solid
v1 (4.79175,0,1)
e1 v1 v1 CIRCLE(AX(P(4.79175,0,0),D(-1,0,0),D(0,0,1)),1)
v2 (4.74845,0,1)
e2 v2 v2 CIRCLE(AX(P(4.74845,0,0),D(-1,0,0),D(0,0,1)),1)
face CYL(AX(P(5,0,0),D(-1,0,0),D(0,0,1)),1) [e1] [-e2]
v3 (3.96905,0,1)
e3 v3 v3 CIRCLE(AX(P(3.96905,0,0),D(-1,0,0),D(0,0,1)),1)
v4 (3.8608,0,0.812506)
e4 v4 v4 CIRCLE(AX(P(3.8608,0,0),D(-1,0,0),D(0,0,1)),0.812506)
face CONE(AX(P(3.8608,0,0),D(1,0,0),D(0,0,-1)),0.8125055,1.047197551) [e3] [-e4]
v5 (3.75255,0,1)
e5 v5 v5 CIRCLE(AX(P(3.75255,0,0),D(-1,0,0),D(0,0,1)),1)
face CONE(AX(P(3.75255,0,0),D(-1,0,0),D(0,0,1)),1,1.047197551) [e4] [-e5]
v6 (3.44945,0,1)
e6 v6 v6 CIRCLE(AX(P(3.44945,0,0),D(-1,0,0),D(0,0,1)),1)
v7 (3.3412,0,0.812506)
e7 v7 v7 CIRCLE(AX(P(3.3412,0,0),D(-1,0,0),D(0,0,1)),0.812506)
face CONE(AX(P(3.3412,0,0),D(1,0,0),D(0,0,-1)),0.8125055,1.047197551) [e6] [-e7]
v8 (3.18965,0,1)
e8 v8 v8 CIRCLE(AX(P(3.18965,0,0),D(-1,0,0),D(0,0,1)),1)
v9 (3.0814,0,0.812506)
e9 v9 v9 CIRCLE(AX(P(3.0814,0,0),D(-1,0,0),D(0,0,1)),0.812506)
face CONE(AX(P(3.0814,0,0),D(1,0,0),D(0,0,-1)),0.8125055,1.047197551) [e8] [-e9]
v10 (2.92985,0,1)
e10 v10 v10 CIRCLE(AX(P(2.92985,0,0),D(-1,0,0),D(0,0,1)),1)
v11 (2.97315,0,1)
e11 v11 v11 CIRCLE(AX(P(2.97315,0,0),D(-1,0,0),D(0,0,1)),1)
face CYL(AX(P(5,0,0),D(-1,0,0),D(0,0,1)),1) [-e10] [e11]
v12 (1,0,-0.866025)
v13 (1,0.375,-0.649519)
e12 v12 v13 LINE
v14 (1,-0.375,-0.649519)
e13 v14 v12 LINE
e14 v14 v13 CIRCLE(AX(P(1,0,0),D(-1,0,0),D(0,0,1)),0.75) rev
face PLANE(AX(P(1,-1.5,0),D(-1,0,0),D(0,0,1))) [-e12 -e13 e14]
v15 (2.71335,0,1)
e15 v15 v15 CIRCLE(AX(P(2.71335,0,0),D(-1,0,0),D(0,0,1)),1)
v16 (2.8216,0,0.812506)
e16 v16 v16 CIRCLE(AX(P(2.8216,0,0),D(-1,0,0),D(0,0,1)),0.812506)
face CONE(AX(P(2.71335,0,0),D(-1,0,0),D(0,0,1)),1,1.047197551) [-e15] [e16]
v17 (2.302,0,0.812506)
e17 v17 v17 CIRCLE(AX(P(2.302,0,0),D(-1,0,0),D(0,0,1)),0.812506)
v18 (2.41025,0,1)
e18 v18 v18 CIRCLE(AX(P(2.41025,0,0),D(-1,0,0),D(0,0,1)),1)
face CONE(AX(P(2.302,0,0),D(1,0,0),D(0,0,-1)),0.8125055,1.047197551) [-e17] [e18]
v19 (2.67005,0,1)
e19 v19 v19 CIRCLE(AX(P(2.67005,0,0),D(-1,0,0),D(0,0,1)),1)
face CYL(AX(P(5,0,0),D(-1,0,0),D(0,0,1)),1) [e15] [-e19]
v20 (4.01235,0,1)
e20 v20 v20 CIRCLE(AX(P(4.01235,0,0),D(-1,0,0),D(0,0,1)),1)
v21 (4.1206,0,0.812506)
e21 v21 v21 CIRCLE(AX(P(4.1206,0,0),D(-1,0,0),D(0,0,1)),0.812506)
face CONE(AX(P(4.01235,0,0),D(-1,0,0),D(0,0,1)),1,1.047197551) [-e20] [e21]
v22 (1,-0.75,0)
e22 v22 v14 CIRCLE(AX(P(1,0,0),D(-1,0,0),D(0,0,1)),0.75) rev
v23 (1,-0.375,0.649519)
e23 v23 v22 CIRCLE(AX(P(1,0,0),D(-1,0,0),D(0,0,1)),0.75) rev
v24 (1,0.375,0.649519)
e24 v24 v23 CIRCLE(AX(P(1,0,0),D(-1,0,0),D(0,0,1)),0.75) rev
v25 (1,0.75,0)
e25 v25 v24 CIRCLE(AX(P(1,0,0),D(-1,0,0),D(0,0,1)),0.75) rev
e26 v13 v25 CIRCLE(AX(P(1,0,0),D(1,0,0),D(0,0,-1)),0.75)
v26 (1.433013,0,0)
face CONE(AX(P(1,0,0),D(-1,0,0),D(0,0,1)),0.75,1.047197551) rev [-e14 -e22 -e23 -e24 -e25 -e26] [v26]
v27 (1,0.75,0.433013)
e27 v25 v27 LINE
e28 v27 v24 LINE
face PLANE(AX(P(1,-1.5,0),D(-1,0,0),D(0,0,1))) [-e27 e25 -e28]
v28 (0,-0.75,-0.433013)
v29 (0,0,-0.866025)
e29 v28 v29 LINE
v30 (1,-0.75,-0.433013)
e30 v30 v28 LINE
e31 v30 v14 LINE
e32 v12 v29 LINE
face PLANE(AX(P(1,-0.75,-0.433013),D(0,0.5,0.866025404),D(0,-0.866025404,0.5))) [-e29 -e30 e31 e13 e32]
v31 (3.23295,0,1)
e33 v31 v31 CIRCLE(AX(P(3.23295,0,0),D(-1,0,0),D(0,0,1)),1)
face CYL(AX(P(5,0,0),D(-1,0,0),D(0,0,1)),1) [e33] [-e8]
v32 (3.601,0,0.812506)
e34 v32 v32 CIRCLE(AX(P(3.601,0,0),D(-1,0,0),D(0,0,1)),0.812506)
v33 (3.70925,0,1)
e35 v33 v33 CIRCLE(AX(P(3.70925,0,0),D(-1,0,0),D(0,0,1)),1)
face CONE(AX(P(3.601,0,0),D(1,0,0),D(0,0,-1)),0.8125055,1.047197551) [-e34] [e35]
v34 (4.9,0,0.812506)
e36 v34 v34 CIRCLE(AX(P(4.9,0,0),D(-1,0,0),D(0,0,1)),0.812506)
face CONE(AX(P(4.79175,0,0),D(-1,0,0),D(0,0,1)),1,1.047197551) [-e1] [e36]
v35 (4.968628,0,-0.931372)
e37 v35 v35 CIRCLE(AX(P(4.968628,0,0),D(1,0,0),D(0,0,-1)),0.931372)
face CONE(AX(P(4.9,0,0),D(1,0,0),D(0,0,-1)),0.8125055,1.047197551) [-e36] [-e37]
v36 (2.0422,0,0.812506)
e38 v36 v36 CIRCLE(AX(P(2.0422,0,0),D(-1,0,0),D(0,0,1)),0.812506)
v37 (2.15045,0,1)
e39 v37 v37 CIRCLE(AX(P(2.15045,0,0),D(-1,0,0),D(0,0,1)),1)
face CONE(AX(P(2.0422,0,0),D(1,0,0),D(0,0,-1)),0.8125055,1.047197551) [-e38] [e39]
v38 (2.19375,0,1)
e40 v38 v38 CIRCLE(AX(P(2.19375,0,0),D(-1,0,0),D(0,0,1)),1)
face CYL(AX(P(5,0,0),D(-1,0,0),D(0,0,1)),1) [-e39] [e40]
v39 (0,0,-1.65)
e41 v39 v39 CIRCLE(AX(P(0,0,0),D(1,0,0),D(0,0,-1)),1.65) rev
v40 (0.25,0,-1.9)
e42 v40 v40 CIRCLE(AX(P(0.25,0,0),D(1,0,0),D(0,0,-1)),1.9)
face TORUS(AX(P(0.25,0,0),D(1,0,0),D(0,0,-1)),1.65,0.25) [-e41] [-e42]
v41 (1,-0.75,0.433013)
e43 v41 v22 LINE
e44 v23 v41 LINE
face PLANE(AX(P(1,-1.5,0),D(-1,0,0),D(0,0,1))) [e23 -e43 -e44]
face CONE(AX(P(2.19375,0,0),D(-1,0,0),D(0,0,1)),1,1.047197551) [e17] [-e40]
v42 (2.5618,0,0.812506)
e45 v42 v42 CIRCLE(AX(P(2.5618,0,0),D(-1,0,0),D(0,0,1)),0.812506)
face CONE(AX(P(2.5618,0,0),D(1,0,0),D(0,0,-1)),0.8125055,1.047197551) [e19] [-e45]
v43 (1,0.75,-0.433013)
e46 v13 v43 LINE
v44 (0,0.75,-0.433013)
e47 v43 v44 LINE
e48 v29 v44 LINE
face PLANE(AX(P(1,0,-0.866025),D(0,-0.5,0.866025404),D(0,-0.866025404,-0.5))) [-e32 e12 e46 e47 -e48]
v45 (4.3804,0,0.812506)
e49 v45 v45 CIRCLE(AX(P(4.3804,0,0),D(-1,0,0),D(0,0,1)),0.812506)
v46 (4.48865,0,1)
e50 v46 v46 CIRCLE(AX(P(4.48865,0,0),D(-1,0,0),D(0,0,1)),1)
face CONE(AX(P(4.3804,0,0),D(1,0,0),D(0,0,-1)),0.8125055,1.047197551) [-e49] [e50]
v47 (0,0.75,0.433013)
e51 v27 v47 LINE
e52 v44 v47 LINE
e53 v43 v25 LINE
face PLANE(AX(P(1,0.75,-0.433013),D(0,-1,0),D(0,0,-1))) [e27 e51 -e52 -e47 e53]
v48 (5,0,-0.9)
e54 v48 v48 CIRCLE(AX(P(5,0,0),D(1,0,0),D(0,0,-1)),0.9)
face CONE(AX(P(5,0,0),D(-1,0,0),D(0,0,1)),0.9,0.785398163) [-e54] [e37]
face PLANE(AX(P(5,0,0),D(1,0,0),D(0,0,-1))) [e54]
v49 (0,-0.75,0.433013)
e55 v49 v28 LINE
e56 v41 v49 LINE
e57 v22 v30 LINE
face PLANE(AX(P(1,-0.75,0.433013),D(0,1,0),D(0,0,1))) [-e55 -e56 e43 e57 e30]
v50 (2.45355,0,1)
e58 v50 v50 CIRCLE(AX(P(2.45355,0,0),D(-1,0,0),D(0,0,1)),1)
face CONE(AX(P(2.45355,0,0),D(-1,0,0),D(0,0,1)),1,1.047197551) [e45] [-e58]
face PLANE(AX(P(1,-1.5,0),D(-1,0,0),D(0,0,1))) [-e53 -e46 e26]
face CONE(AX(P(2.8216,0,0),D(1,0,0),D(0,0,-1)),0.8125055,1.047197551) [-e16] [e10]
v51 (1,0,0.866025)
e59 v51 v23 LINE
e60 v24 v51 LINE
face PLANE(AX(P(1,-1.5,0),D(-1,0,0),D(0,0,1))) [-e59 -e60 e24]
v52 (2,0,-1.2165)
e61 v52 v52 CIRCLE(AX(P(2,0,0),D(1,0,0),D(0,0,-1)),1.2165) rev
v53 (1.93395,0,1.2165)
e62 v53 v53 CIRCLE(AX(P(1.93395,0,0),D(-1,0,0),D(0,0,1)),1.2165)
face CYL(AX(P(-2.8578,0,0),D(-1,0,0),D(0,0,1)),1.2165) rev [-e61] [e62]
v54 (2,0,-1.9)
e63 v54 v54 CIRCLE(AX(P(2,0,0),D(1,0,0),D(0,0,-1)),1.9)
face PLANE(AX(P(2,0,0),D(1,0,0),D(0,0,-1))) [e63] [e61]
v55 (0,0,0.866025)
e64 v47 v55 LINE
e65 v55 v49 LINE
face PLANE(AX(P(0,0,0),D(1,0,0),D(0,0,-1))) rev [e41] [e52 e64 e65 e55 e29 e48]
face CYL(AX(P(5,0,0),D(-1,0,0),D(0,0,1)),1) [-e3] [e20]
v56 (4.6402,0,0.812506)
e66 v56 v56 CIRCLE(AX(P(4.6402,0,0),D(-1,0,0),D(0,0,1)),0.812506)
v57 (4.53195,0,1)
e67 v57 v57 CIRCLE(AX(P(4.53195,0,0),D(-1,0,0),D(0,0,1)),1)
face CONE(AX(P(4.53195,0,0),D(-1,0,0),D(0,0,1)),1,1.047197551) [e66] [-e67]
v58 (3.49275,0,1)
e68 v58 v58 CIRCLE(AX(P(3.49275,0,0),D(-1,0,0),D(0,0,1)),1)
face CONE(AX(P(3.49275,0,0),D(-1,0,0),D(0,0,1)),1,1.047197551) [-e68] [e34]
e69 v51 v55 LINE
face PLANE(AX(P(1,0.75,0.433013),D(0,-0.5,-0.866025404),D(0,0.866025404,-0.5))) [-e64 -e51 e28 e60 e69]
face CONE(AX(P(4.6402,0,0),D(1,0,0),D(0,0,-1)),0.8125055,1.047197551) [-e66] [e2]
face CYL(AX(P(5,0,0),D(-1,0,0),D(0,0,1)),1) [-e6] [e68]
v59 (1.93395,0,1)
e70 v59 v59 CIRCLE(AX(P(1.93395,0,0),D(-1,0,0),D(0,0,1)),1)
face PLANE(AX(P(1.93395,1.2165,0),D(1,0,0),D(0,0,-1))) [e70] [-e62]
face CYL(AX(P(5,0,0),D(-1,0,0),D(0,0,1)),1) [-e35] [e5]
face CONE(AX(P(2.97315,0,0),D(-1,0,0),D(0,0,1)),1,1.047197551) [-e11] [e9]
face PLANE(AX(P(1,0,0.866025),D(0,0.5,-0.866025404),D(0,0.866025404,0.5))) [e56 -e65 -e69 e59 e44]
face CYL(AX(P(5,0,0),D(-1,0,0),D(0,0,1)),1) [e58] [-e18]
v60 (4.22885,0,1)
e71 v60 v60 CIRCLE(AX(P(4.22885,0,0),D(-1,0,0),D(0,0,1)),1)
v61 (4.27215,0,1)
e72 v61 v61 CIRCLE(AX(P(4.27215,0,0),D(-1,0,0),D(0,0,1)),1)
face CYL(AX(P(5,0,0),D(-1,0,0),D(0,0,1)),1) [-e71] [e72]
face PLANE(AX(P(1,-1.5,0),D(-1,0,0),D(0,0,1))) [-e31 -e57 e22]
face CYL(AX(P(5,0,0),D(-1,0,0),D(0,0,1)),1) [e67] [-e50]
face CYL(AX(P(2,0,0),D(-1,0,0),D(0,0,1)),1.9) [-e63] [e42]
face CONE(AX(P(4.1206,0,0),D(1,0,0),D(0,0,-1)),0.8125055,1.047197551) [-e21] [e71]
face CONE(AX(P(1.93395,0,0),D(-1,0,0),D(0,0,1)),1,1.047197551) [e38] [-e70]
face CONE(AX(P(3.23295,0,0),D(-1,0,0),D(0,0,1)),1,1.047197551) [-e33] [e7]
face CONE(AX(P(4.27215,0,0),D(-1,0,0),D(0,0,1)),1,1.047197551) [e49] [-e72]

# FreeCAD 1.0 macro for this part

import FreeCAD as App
import Part
import Sketcher
Q = App.Units.Quantity


def edges_at(feature, points):
    """Names of the edges that pass closest to the given points."""
    edges = feature.Shape.Edges
    near = lambda p: min(range(len(edges)), key=lambda i: edges[i].distToShape(Part.Vertex(*p))[0])
    return sorted({f"Edge{near(p) + 1}" for p in points})

doc = App.newDocument("Part")
body = doc.addObject("PartDesign::Body", "Body")

# Sketch on YZ plane
sketch1 = body.newObject("Sketcher::SketchObject", "Sketch")
sketch1.AttachmentSupport = (doc.getObject("YZ_Plane"), [""])
sketch1.MapMode = "FlatFace"
sketch1.addGeometry(Part.Circle(App.Vector(0, 0, 0), App.Vector(0, 0, 1), 1.9), False)
sketch1.addConstraint(Sketcher.Constraint("Coincident", 0, 3, -1, 1))
sketch1.addConstraint(Sketcher.Constraint("Diameter", 0, Q("3.8 mm")))
pad1 = body.newObject("PartDesign::Pad", "Pad")
pad1.Profile = sketch1
pad1.Length = 2

# Sketch on YZ plane
sketch2 = body.newObject("Sketcher::SketchObject", "Sketch001")
sketch2.AttachmentSupport = (doc.getObject("YZ_Plane"), [""])
sketch2.MapMode = "FlatFace"
sketch2.AttachmentOffset = App.Placement(App.Vector(0, 0, 2), App.Rotation())
sketch2.addGeometry(Part.Circle(App.Vector(0, 0, 0), App.Vector(0, 0, 1), 1), False)
sketch2.addConstraint(Sketcher.Constraint("Coincident", 0, 3, -1, 1))
sketch2.addConstraint(Sketcher.Constraint("Diameter", 0, Q("2 mm")))
pad2 = body.newObject("PartDesign::Pad", "Pad001")
pad2.Profile = sketch2
pad2.Length = 3

# Sketch on YZ plane
sketch3 = body.newObject("Sketcher::SketchObject", "Sketch002")
sketch3.AttachmentSupport = (doc.getObject("YZ_Plane"), [""])
sketch3.MapMode = "FlatFace"
sketch3.addGeometry(Part.LineSegment(App.Vector(0, -0.9, 0), App.Vector(0.8, -0.4, 0)), False)
sketch3.addGeometry(Part.LineSegment(App.Vector(0.8, -0.4, 0), App.Vector(0.8, 0.4, 0)), False)
sketch3.addGeometry(Part.LineSegment(App.Vector(0.8, 0.4, 0), App.Vector(0, 0.9, 0)), False)
sketch3.addGeometry(Part.LineSegment(App.Vector(0, 0.9, 0), App.Vector(-0.8, 0.4, 0)), False)
sketch3.addGeometry(Part.LineSegment(App.Vector(-0.8, 0.4, 0), App.Vector(-0.8, -0.4, 0)), False)
sketch3.addGeometry(Part.LineSegment(App.Vector(-0.8, -0.4, 0), App.Vector(0, -0.9, 0)), False)
sketch3.addConstraint(Sketcher.Constraint("Coincident", 0, 2, 1, 1))
sketch3.addConstraint(Sketcher.Constraint("Coincident", 1, 2, 2, 1))
sketch3.addConstraint(Sketcher.Constraint("Coincident", 2, 2, 3, 1))
sketch3.addConstraint(Sketcher.Constraint("Coincident", 3, 2, 4, 1))
sketch3.addConstraint(Sketcher.Constraint("Coincident", 4, 2, 5, 1))
sketch3.addConstraint(Sketcher.Constraint("Coincident", 5, 2, 0, 1))
sketch3.addConstraint(Sketcher.Constraint("Vertical", 1))
sketch3.addConstraint(Sketcher.Constraint("Vertical", 4))
sketch3.addConstraint(Sketcher.Constraint("Symmetric", 0, 2, 3, 2, -1, 1))
sketch3.addConstraint(Sketcher.Constraint("Symmetric", 2, 2, 5, 2, -1, 1))
sketch3.addConstraint(Sketcher.Constraint("PointOnObject", 2, 2, -2))
sketch3.addConstraint(Sketcher.Constraint("Parallel", 2, 5))
sketch3.addConstraint(Sketcher.Constraint("Horizontal", 1, 2, 3, 2))
sketch3.addConstraint(Sketcher.Constraint("Angle", 0, Q("30 deg")))
sketch3.addConstraint(Sketcher.Constraint("DistanceX", 3, 2, 1, 2, Q("1.5 mm")))
sketch3.addConstraint(Sketcher.Constraint("DistanceY", 1, 1, 1, 2, Q("0.866025 mm")))
pocket1 = body.newObject("PartDesign::Pocket", "Pocket")
pocket1.Profile = sketch3
pocket1.Length = 1
pocket1.Reversed = True

# Sketch on XY plane
sketch4 = body.newObject("Sketcher::SketchObject", "Sketch003")
sketch4.AttachmentSupport = (doc.getObject("XY_Plane"), [""])
sketch4.MapMode = "FlatFace"
sketch4.addGeometry(Part.LineSegment(App.Vector(1, -0.75, 0), App.Vector(1.43, 0, 0)), False)
sketch4.addGeometry(Part.LineSegment(App.Vector(1.43, 0, 0), App.Vector(1, 0, 0)), False)
sketch4.addGeometry(Part.LineSegment(App.Vector(1, 0, 0), App.Vector(1, -0.75, 0)), False)
sketch4.addConstraint(Sketcher.Constraint("Coincident", 0, 2, 1, 1))
sketch4.addConstraint(Sketcher.Constraint("Coincident", 1, 2, 2, 1))
sketch4.addConstraint(Sketcher.Constraint("Coincident", 2, 2, 0, 1))
sketch4.addConstraint(Sketcher.Constraint("Horizontal", 1))
sketch4.addConstraint(Sketcher.Constraint("Vertical", 2))
sketch4.addConstraint(Sketcher.Constraint("PointOnObject", 0, 2, -1))
sketch4.addConstraint(Sketcher.Constraint("Angle", 0, Q("60 deg")))
sketch4.addConstraint(Sketcher.Constraint("DistanceX", -1, 1, 1, 2, Q("1 mm")))
sketch4.addConstraint(Sketcher.Constraint("DistanceY", 2, 2, 2, 1, Q("0.75 mm")))
groove = body.newObject("PartDesign::Groove", "Groove")
groove.Profile = sketch4
groove.ReferenceAxis = (sketch4, ["H_Axis"])
groove.Angle = 360
doc.recompute()

fillet = body.newObject("PartDesign::Fillet", "Fillet")
fillet.Base = (groove, edges_at(groove, [(0, 0, 1.9)]))
fillet.Radius = 0.25
doc.recompute()

chamfer = body.newObject("PartDesign::Chamfer", "Chamfer")
chamfer.Base = (fillet, edges_at(fillet, [(5, 0, 1)]))
chamfer.Size = 0.1

# Sketch on XY plane
sketch5 = body.newObject("Sketcher::SketchObject", "Sketch004")
sketch5.AttachmentSupport = (doc.getObject("XY_Plane"), [""])
sketch5.MapMode = "FlatFace"
sketch5.addGeometry(Part.LineSegment(App.Vector(4.9, 0.81, 0), App.Vector(5.01, 1, 0)), False)
sketch5.addGeometry(Part.LineSegment(App.Vector(5.01, 1, 0), App.Vector(5.01, 1.22, 0)), False)
sketch5.addGeometry(Part.LineSegment(App.Vector(5.01, 1.22, 0), App.Vector(4.79, 1.22, 0)), False)
sketch5.addGeometry(Part.LineSegment(App.Vector(4.79, 1.22, 0), App.Vector(4.79, 1, 0)), False)
sketch5.addGeometry(Part.LineSegment(App.Vector(4.79, 1, 0), App.Vector(4.9, 0.81, 0)), False)
sketch5.addConstraint(Sketcher.Constraint("Coincident", 0, 2, 1, 1))
sketch5.addConstraint(Sketcher.Constraint("Coincident", 1, 2, 2, 1))
sketch5.addConstraint(Sketcher.Constraint("Coincident", 2, 2, 3, 1))
sketch5.addConstraint(Sketcher.Constraint("Coincident", 3, 2, 4, 1))
sketch5.addConstraint(Sketcher.Constraint("Coincident", 4, 2, 0, 1))
sketch5.addConstraint(Sketcher.Constraint("Vertical", 1))
sketch5.addConstraint(Sketcher.Constraint("Horizontal", 2))
sketch5.addConstraint(Sketcher.Constraint("Vertical", 3))
sketch5.addConstraint(Sketcher.Constraint("Horizontal", 0, 2, 3, 2))
sketch5.addConstraint(Sketcher.Constraint("Equal", 2, 1))
sketch5.addConstraint(Sketcher.Constraint("Equal", 0, 4))
sketch5.addConstraint(Sketcher.Constraint("Angle", 0, Q("60 deg")))
sketch5.addConstraint(Sketcher.Constraint("DistanceY", -1, 1, 0, 2, Q("1 mm")))
sketch5.addConstraint(Sketcher.Constraint("DistanceX", -1, 1, 4, 2, Q("4.9 mm")))
sketch5.addConstraint(Sketcher.Constraint("DistanceX", 2, 2, 2, 1, Q("0.2165 mm")))
groove2 = body.newObject("PartDesign::Groove", "Groove001")
groove2.Profile = sketch5
groove2.ReferenceAxis = (sketch5, ["H_Axis"])
groove2.Angle = 360
doc.recompute()

linearpattern = body.newObject("PartDesign::LinearPattern", "LinearPattern")
linearpattern.Originals = [groove2]
linearpattern.Direction = (doc.getObject("X_Axis"), [""])
linearpattern.Mode = "offset"
linearpattern.Offset = 0.2598
linearpattern.Occurrences = 12
linearpattern.Reversed = True
body.Tip = linearpattern

doc.recompute()
